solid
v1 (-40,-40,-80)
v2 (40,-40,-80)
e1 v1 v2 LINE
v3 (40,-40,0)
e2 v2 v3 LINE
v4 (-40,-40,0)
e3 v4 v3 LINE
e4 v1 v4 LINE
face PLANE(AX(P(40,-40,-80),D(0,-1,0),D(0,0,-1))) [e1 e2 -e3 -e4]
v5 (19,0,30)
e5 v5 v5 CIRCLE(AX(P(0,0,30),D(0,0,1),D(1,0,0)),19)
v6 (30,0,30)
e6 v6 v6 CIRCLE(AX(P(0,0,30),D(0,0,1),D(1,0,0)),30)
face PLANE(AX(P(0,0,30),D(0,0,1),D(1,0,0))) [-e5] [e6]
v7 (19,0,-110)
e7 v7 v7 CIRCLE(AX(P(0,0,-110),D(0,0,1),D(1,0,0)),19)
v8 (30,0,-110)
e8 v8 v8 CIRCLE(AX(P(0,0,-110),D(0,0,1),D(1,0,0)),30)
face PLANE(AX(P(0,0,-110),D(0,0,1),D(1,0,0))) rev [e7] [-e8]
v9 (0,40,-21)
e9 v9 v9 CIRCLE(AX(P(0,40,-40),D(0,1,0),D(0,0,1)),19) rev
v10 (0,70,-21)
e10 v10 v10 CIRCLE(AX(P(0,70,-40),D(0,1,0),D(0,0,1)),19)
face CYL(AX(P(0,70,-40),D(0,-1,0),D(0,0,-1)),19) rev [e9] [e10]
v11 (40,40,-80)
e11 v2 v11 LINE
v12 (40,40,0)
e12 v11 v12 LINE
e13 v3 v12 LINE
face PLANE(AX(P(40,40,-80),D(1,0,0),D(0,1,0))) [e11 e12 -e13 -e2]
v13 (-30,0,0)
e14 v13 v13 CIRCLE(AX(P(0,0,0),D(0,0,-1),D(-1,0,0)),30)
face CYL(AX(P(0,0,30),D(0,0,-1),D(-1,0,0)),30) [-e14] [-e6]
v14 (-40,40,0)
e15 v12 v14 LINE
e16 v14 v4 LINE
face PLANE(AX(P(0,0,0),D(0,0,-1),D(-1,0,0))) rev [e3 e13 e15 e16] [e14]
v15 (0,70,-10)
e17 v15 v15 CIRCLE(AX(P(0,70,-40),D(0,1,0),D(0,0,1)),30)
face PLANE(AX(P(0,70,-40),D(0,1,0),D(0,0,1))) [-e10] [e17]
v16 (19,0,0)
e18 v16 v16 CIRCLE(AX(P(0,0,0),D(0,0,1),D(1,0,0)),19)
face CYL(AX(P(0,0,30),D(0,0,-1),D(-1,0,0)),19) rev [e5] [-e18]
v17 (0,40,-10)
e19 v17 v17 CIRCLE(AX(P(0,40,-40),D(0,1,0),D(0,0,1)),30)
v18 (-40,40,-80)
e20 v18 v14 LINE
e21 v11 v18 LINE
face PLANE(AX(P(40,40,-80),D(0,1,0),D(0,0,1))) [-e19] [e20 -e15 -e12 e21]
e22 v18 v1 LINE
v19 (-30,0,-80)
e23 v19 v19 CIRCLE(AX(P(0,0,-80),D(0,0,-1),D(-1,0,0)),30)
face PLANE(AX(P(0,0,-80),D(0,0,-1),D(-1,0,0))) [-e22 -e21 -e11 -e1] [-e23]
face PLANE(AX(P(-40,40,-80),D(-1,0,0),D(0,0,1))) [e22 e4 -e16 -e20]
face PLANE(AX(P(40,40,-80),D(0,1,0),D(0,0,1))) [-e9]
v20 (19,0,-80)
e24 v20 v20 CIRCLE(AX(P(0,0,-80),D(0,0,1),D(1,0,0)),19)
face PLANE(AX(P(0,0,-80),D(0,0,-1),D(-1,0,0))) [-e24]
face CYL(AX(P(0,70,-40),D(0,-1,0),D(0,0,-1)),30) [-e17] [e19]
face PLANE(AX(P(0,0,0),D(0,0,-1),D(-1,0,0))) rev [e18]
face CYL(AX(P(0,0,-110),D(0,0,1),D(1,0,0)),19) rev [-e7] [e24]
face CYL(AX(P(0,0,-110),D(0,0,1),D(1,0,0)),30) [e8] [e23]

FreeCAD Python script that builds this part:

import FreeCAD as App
import Part
import Sketcher
from FreeCAD import Vector


def add_polygon(sketch, points):
    """Adds a closed chain of lines whose ends are joined by coincident constraints."""
    first, n = sketch.GeometryCount, len(points)
    for a, b in zip(points, points[1:] + points[:1]):
        sketch.addGeometry(Part.LineSegment(App.Vector(*a, 0), App.Vector(*b, 0)), False)
    for i in range(n):
        sketch.addConstraint(Sketcher.Constraint("Coincident", first + i, 2, first + (i + 1) % n, 1))

doc = App.newDocument("Part")
body = doc.addObject("PartDesign::Body", "Body")

# Sketch on XY plane
sketch1 = body.newObject("Sketcher::SketchObject", "Sketch")
sketch1.AttachmentSupport = (doc.getObject("XY_Plane"), [""])
sketch1.MapMode = "FlatFace"
sketch1.addGeometry([
    Part.Circle(Vector(0, 0, 0), Vector(0, 0, 1), 30),
    Part.Circle(Vector(0, 0, 0), Vector(0, 0, 1), 19),
], False)
sketch1.addConstraint([
    Sketcher.Constraint("Coincident", 0, 3, -1, 1),
    Sketcher.Constraint("Coincident", 1, 3, -1, 1),
    Sketcher.Constraint("Diameter", 0, 60.0),
    Sketcher.Constraint("Diameter", 1, 38.0),
])
pad1 = body.newObject("PartDesign::Pad", "Pad")
pad1.Profile = sketch1
pad1.Length = 30

# Sketch on XY plane
sketch2 = body.newObject("Sketcher::SketchObject", "Sketch001")
sketch2.AttachmentSupport = (doc.getObject("XY_Plane"), [""])
sketch2.MapMode = "FlatFace"
add_polygon(sketch2, [(-40, 40), (-40, -40), (40, -40), (40, 40)])  # lines 0-3
sketch2.addConstraint([
    Sketcher.Constraint("Vertical", 0),
    Sketcher.Constraint("Horizontal", 1),
    Sketcher.Constraint("Vertical", 2),
    Sketcher.Constraint("Horizontal", 3),
    Sketcher.Constraint("Symmetric", 0, 2, 2, 2, -1, 1),
    Sketcher.Constraint("Equal", 3, 0),
    Sketcher.Constraint("DistanceX", 1, 1, 1, 2, 80.0),
])
pad2 = body.newObject("PartDesign::Pad", "Pad001")
pad2.Profile = sketch2
pad2.Length = 80
pad2.Reversed = True

# Sketch on XZ plane
sketch3 = body.newObject("Sketcher::SketchObject", "Sketch002")
sketch3.AttachmentSupport = (doc.getObject("XZ_Plane"), [""])
sketch3.MapMode = "FlatFace"
sketch3.AttachmentOffset = App.Placement(Vector(0, 0, -40), App.Rotation())
sketch3.addGeometry([
    Part.Circle(Vector(0, -40, 0), Vector(0, 0, 1), 30),
    Part.Circle(Vector(0, -40, 0), Vector(0, 0, 1), 19),
], False)
sketch3.addConstraint([
    Sketcher.Constraint("Coincident", 1, 3, 0, 3),
    Sketcher.Constraint("PointOnObject", 0, 3, -2),
    Sketcher.Constraint("Diameter", 0, 60.0),
    Sketcher.Constraint("Diameter", 1, 38.0),
    Sketcher.Constraint("DistanceY", 0, 3, -1, 1, 40.0),
])
pad3 = body.newObject("PartDesign::Pad", "Pad002")
pad3.Profile = sketch3
pad3.Length = 30
pad3.Reversed = True

# Sketch on XY plane
sketch4 = body.newObject("Sketcher::SketchObject", "Sketch003")
sketch4.AttachmentSupport = (doc.getObject("XY_Plane"), [""])
sketch4.MapMode = "FlatFace"
sketch4.AttachmentOffset = App.Placement(Vector(0, 0, -110), App.Rotation())
sketch4.addGeometry([
    Part.Circle(Vector(0, 0, 0), Vector(0, 0, 1), 30),
    Part.Circle(Vector(0, 0, 0), Vector(0, 0, 1), 19),
], False)
sketch4.addConstraint([
    Sketcher.Constraint("Coincident", 0, 3, -1, 1),
    Sketcher.Constraint("Coincident", 1, 3, -1, 1),
    Sketcher.Constraint("Diameter", 0, 60.0),
    Sketcher.Constraint("Diameter", 1, 38.0),
])
pad4 = body.newObject("PartDesign::Pad", "Pad003")
pad4.Profile = sketch4
pad4.Length = 30

doc.recompute()
